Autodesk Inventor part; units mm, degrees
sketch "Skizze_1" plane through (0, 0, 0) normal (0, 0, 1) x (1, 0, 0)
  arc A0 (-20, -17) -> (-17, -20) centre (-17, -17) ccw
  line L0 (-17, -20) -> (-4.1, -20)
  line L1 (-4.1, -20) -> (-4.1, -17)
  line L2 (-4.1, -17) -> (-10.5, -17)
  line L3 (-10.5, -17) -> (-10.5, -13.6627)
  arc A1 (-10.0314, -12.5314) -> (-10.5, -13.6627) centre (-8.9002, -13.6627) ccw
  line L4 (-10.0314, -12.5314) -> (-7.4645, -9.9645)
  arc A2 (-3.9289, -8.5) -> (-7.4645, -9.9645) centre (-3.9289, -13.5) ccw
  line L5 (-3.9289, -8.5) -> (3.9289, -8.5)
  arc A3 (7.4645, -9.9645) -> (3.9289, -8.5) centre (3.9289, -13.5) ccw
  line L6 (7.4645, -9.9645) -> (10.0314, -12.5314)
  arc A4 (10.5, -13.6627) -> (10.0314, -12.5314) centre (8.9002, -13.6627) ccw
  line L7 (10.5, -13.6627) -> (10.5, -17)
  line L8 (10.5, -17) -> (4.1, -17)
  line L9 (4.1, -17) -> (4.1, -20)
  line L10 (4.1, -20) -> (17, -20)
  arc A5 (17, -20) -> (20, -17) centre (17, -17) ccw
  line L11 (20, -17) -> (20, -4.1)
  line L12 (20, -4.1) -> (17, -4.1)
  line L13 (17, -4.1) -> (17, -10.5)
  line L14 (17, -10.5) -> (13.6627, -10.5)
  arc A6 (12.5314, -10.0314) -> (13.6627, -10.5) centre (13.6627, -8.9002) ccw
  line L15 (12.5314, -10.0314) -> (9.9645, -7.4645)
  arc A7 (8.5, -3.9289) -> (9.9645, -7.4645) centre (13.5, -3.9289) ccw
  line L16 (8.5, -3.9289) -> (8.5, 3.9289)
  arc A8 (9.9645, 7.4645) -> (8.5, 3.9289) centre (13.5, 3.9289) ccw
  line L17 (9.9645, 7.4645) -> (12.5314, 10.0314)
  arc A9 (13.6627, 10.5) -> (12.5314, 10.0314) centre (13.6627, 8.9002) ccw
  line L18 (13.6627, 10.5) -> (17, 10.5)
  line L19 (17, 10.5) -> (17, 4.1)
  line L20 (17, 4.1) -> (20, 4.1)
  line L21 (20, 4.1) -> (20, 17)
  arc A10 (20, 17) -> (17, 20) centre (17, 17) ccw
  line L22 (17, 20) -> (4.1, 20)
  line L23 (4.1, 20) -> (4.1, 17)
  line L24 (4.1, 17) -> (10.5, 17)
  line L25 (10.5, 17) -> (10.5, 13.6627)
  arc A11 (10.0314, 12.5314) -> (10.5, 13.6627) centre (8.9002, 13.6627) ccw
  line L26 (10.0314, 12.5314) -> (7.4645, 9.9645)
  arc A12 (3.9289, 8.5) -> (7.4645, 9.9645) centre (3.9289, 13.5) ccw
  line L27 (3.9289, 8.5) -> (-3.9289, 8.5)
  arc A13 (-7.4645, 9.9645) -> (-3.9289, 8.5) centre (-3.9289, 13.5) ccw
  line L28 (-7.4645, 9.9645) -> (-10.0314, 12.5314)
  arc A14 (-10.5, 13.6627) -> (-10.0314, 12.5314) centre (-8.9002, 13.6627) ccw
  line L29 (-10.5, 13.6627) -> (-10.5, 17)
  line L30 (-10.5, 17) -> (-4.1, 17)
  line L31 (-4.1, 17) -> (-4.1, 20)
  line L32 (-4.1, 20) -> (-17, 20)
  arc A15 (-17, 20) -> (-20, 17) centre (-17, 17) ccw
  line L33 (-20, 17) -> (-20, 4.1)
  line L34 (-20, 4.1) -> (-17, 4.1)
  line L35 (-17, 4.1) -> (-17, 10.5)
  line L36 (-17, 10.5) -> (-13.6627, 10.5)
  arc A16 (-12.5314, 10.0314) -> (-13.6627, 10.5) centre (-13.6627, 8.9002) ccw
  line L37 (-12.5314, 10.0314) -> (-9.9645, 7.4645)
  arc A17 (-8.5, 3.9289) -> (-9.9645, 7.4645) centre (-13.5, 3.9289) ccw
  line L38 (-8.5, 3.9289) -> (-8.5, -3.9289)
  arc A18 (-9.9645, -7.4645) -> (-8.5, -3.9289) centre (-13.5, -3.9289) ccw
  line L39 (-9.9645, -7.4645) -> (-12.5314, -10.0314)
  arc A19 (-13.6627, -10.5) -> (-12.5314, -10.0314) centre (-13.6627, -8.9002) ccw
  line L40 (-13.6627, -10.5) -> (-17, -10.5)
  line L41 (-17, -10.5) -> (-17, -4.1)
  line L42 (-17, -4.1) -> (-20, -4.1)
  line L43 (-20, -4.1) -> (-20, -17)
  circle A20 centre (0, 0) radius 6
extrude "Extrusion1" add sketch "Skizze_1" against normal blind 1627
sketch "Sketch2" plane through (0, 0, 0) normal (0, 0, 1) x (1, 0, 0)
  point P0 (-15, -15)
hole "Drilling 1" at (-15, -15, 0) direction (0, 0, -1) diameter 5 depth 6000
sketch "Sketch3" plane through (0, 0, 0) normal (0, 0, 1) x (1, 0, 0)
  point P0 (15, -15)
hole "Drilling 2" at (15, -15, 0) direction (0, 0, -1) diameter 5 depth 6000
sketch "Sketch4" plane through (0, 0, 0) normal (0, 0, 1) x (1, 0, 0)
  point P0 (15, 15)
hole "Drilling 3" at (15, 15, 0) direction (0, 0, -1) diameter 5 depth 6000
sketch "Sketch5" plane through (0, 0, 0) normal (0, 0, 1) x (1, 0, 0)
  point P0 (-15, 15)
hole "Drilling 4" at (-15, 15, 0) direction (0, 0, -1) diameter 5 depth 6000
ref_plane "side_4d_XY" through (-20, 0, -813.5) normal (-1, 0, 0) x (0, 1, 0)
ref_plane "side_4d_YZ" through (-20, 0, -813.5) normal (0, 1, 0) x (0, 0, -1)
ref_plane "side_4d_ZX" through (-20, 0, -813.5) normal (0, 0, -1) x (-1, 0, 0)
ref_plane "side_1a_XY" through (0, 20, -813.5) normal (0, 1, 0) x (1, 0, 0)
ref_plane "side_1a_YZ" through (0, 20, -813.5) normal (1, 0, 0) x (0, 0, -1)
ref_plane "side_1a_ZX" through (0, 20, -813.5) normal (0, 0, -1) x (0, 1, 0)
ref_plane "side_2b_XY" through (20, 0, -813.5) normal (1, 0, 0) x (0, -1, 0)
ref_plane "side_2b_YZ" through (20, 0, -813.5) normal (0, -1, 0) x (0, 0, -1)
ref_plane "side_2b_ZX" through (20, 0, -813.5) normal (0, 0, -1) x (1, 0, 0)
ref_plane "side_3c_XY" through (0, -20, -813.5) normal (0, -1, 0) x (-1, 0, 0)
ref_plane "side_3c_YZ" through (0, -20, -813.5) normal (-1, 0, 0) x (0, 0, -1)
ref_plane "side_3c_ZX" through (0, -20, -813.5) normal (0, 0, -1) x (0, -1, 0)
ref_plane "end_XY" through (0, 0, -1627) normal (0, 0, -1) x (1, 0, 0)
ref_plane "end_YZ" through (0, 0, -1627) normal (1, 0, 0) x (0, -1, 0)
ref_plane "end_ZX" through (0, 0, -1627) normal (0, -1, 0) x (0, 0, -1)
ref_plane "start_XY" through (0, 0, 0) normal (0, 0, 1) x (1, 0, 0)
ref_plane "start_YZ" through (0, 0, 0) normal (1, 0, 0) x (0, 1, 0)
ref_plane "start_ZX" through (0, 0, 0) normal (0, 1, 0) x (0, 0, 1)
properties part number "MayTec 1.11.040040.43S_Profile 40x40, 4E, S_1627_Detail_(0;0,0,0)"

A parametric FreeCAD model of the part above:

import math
import FreeCAD as App
import Part
import Sketcher
Q = App.Units.Quantity

doc = App.newDocument("Part")
body = doc.addObject("PartDesign::Body", "Body")

sketch1 = body.newObject("Sketcher::SketchObject", "Sketch")
sketch1.AttachmentSupport = (doc.getObject("XY_Plane"), [""])
sketch1.MapMode = "FlatFace"
sketch1.addGeometry([
    Part.LineSegment(App.Vector(-20, -4.1, 0), App.Vector(-20, -17, 0)),
    Part.ArcOfCircle(Part.Circle(App.Vector(-17, -17, 0), App.Vector(0, 0, 1), 3), math.radians(180), math.radians(270)),
    Part.LineSegment(App.Vector(-17, -20, 0), App.Vector(-4.1, -20, 0)),
    Part.LineSegment(App.Vector(-4.1, -20, 0), App.Vector(-4.1, -17, 0)),
    Part.LineSegment(App.Vector(-4.1, -17, 0), App.Vector(-10.5, -17, 0)),
    Part.LineSegment(App.Vector(-10.5, -17, 0), App.Vector(-10.5, -13.7, 0)),
    Part.ArcOfCircle(Part.Circle(App.Vector(-8.9, -13.7, 0), App.Vector(0, 0, 1), 1.6), math.radians(135), math.radians(180)),
    Part.LineSegment(App.Vector(-10, -12.5, 0), App.Vector(-7.5, -10, 0)),
    Part.ArcOfCircle(Part.Circle(App.Vector(-3.9, -13.5, 0), App.Vector(0, 0, 1), 5), math.radians(90), math.radians(135)),
    Part.LineSegment(App.Vector(-3.9, -8.5, 0), App.Vector(3.9, -8.5, 0)),
    Part.ArcOfCircle(Part.Circle(App.Vector(3.9, -13.5, 0), App.Vector(0, 0, 1), 5), math.radians(45), math.radians(90)),
    Part.LineSegment(App.Vector(7.5, -10, 0), App.Vector(10, -12.5, 0)),
    Part.ArcOfCircle(Part.Circle(App.Vector(8.9, -13.7, 0), App.Vector(0, 0, 1), 1.6), math.radians(0), math.radians(45)),
    Part.LineSegment(App.Vector(10.5, -13.7, 0), App.Vector(10.5, -17, 0)),
    Part.LineSegment(App.Vector(10.5, -17, 0), App.Vector(4.1, -17, 0)),
    Part.LineSegment(App.Vector(4.1, -17, 0), App.Vector(4.1, -20, 0)),
    Part.LineSegment(App.Vector(4.1, -20, 0), App.Vector(17, -20, 0)),
    Part.ArcOfCircle(Part.Circle(App.Vector(17, -17, 0), App.Vector(0, 0, 1), 3), math.radians(-90), math.radians(0)),
    Part.LineSegment(App.Vector(20, -17, 0), App.Vector(20, -4.1, 0)),
    Part.LineSegment(App.Vector(20, -4.1, 0), App.Vector(17, -4.1, 0)),
    Part.LineSegment(App.Vector(17, -4.1, 0), App.Vector(17, -10.5, 0)),
    Part.LineSegment(App.Vector(17, -10.5, 0), App.Vector(13.7, -10.5, 0)),
    Part.ArcOfCircle(Part.Circle(App.Vector(13.7, -8.9, 0), App.Vector(0, 0, 1), 1.6), math.radians(-135), math.radians(-90)),
    Part.LineSegment(App.Vector(12.5, -10, 0), App.Vector(10, -7.5, 0)),
    Part.ArcOfCircle(Part.Circle(App.Vector(13.5, -3.9, 0), App.Vector(0, 0, 1), 5), math.radians(180), math.radians(225)),
    Part.LineSegment(App.Vector(8.5, -3.9, 0), App.Vector(8.5, 3.9, 0)),
    Part.ArcOfCircle(Part.Circle(App.Vector(13.5, 3.9, 0), App.Vector(0, 0, 1), 5), math.radians(135), math.radians(180)),
    Part.LineSegment(App.Vector(10, 7.5, 0), App.Vector(12.5, 10, 0)),
    Part.ArcOfCircle(Part.Circle(App.Vector(13.7, 8.9, 0), App.Vector(0, 0, 1), 1.6), math.radians(90), math.radians(135)),
    Part.LineSegment(App.Vector(13.7, 10.5, 0), App.Vector(17, 10.5, 0)),
    Part.LineSegment(App.Vector(17, 10.5, 0), App.Vector(17, 4.1, 0)),
    Part.LineSegment(App.Vector(17, 4.1, 0), App.Vector(20, 4.1, 0)),
    Part.LineSegment(App.Vector(20, 4.1, 0), App.Vector(20, 17, 0)),
    Part.ArcOfCircle(Part.Circle(App.Vector(17, 17, 0), App.Vector(0, 0, 1), 3), math.radians(0), math.radians(90)),
    Part.LineSegment(App.Vector(17, 20, 0), App.Vector(4.1, 20, 0)),
    Part.LineSegment(App.Vector(4.1, 20, 0), App.Vector(4.1, 17, 0)),
    Part.LineSegment(App.Vector(4.1, 17, 0), App.Vector(10.5, 17, 0)),
    Part.LineSegment(App.Vector(10.5, 17, 0), App.Vector(10.5, 13.7, 0)),
    Part.ArcOfCircle(Part.Circle(App.Vector(8.9, 13.7, 0), App.Vector(0, 0, 1), 1.6), math.radians(-45), math.radians(0)),
    Part.LineSegment(App.Vector(10, 12.5, 0), App.Vector(7.5, 10, 0)),
    Part.ArcOfCircle(Part.Circle(App.Vector(3.9, 13.5, 0), App.Vector(0, 0, 1), 5), math.radians(-90), math.radians(-45)),
    Part.LineSegment(App.Vector(3.9, 8.5, 0), App.Vector(-3.9, 8.5, 0)),
    Part.ArcOfCircle(Part.Circle(App.Vector(-3.9, 13.5, 0), App.Vector(0, 0, 1), 5), math.radians(-135), math.radians(-90)),
    Part.LineSegment(App.Vector(-7.5, 10, 0), App.Vector(-10, 12.5, 0)),
    Part.ArcOfCircle(Part.Circle(App.Vector(-8.9, 13.7, 0), App.Vector(0, 0, 1), 1.6), math.radians(180), math.radians(225)),
    Part.LineSegment(App.Vector(-10.5, 13.7, 0), App.Vector(-10.5, 17, 0)),
    Part.LineSegment(App.Vector(-10.5, 17, 0), App.Vector(-4.1, 17, 0)),
    Part.LineSegment(App.Vector(-4.1, 17, 0), App.Vector(-4.1, 20, 0)),
    Part.LineSegment(App.Vector(-4.1, 20, 0), App.Vector(-17, 20, 0)),
    Part.ArcOfCircle(Part.Circle(App.Vector(-17, 17, 0), App.Vector(0, 0, 1), 3), math.radians(90), math.radians(180)),
    Part.LineSegment(App.Vector(-20, 17, 0), App.Vector(-20, 4.1, 0)),
    Part.LineSegment(App.Vector(-20, 4.1, 0), App.Vector(-17, 4.1, 0)),
    Part.LineSegment(App.Vector(-17, 4.1, 0), App.Vector(-17, 10.5, 0)),
    Part.LineSegment(App.Vector(-17, 10.5, 0), App.Vector(-13.7, 10.5, 0)),
    Part.ArcOfCircle(Part.Circle(App.Vector(-13.7, 8.9, 0), App.Vector(0, 0, 1), 1.6), math.radians(45), math.radians(90)),
    Part.LineSegment(App.Vector(-12.5, 10, 0), App.Vector(-10, 7.5, 0)),
    Part.ArcOfCircle(Part.Circle(App.Vector(-13.5, 3.9, 0), App.Vector(0, 0, 1), 5), math.radians(0), math.radians(45)),
    Part.LineSegment(App.Vector(-8.5, 3.9, 0), App.Vector(-8.5, -3.9, 0)),
    Part.ArcOfCircle(Part.Circle(App.Vector(-13.5, -3.9, 0), App.Vector(0, 0, 1), 5), math.radians(-45), math.radians(0)),
    Part.LineSegment(App.Vector(-10, -7.5, 0), App.Vector(-12.5, -10, 0)),
    Part.ArcOfCircle(Part.Circle(App.Vector(-13.7, -8.9, 0), App.Vector(0, 0, 1), 1.6), math.radians(-90), math.radians(-45)),
    Part.LineSegment(App.Vector(-13.7, -10.5, 0), App.Vector(-17, -10.5, 0)),
    Part.LineSegment(App.Vector(-17, -10.5, 0), App.Vector(-17, -4.1, 0)),
    Part.LineSegment(App.Vector(-17, -4.1, 0), App.Vector(-20, -4.1, 0)),
    Part.Circle(App.Vector(0, 0, 0), App.Vector(0, 0, 1), 6),
], False)
sketch1.addConstraint([
    Sketcher.Constraint("Tangent", 0, 2, 1, 1),
    Sketcher.Constraint("Tangent", 1, 2, 2, 1),
    Sketcher.Constraint("Coincident", 2, 2, 3, 1),
    Sketcher.Constraint("Coincident", 3, 2, 4, 1),
    Sketcher.Constraint("Coincident", 4, 2, 5, 1),
    Sketcher.Constraint("Tangent", 5, 2, 6, 2),
    Sketcher.Constraint("Tangent", 6, 1, 7, 1),
    Sketcher.Constraint("Tangent", 7, 2, 8, 2),
    Sketcher.Constraint("Tangent", 8, 1, 9, 1),
    Sketcher.Constraint("Tangent", 9, 2, 10, 2),
    Sketcher.Constraint("Tangent", 10, 1, 11, 1),
    Sketcher.Constraint("Tangent", 11, 2, 12, 2),
    Sketcher.Constraint("Tangent", 12, 1, 13, 1),
    Sketcher.Constraint("Coincident", 13, 2, 14, 1),
    Sketcher.Constraint("Coincident", 14, 2, 15, 1),
    Sketcher.Constraint("Coincident", 15, 2, 16, 1),
    Sketcher.Constraint("Tangent", 16, 2, 17, 1),
    Sketcher.Constraint("Tangent", 17, 2, 18, 1),
    Sketcher.Constraint("Coincident", 18, 2, 19, 1),
    Sketcher.Constraint("Coincident", 19, 2, 20, 1),
    Sketcher.Constraint("Coincident", 20, 2, 21, 1),
    Sketcher.Constraint("Tangent", 21, 2, 22, 2),
    Sketcher.Constraint("Tangent", 22, 1, 23, 1),
    Sketcher.Constraint("Tangent", 23, 2, 24, 2),
    Sketcher.Constraint("Tangent", 24, 1, 25, 1),
    Sketcher.Constraint("Tangent", 25, 2, 26, 2),
    Sketcher.Constraint("Tangent", 26, 1, 27, 1),
    Sketcher.Constraint("Tangent", 27, 2, 28, 2),
    Sketcher.Constraint("Tangent", 28, 1, 29, 1),
    Sketcher.Constraint("Coincident", 29, 2, 30, 1),
    Sketcher.Constraint("Coincident", 30, 2, 31, 1),
    Sketcher.Constraint("Coincident", 31, 2, 32, 1),
    Sketcher.Constraint("Tangent", 32, 2, 33, 1),
    Sketcher.Constraint("Tangent", 33, 2, 34, 1),
    Sketcher.Constraint("Coincident", 34, 2, 35, 1),
    Sketcher.Constraint("Coincident", 35, 2, 36, 1),
    Sketcher.Constraint("Coincident", 36, 2, 37, 1),
    Sketcher.Constraint("Tangent", 37, 2, 38, 2),
    Sketcher.Constraint("Tangent", 38, 1, 39, 1),
    Sketcher.Constraint("Tangent", 39, 2, 40, 2),
    Sketcher.Constraint("Tangent", 40, 1, 41, 1),
    Sketcher.Constraint("Tangent", 41, 2, 42, 2),
    Sketcher.Constraint("Tangent", 42, 1, 43, 1),
    Sketcher.Constraint("Tangent", 43, 2, 44, 2),
    Sketcher.Constraint("Tangent", 44, 1, 45, 1),
    Sketcher.Constraint("Coincident", 45, 2, 46, 1),
    Sketcher.Constraint("Coincident", 46, 2, 47, 1),
    Sketcher.Constraint("Coincident", 47, 2, 48, 1),
    Sketcher.Constraint("Tangent", 48, 2, 49, 1),
    Sketcher.Constraint("Tangent", 49, 2, 50, 1),
    Sketcher.Constraint("Coincident", 50, 2, 51, 1),
    Sketcher.Constraint("Coincident", 51, 2, 52, 1),
    Sketcher.Constraint("Coincident", 52, 2, 53, 1),
    Sketcher.Constraint("Tangent", 53, 2, 54, 2),
    Sketcher.Constraint("Tangent", 54, 1, 55, 1),
    Sketcher.Constraint("Tangent", 55, 2, 56, 2),
    Sketcher.Constraint("Tangent", 56, 1, 57, 1),
    Sketcher.Constraint("Tangent", 57, 2, 58, 2),
    Sketcher.Constraint("Tangent", 58, 1, 59, 1),
    Sketcher.Constraint("Tangent", 59, 2, 60, 2),
    Sketcher.Constraint("Tangent", 60, 1, 61, 1),
    Sketcher.Constraint("Coincident", 61, 2, 62, 1),
    Sketcher.Constraint("Coincident", 62, 2, 63, 1),
    Sketcher.Constraint("Coincident", 63, 2, 0, 1),
    Sketcher.Constraint("Vertical", 0),
    Sketcher.Constraint("Horizontal", 2),
    Sketcher.Constraint("Vertical", 3),
    Sketcher.Constraint("Horizontal", 4),
    Sketcher.Constraint("Vertical", 5),
    Sketcher.Constraint("Horizontal", 9),
    Sketcher.Constraint("Vertical", 13),
    Sketcher.Constraint("Horizontal", 14),
    Sketcher.Constraint("Vertical", 15),
    Sketcher.Constraint("Horizontal", 16),
    Sketcher.Constraint("Vertical", 18),
    Sketcher.Constraint("Horizontal", 19),
    Sketcher.Constraint("Vertical", 20),
    Sketcher.Constraint("Horizontal", 21),
    Sketcher.Constraint("Vertical", 25),
    Sketcher.Constraint("Horizontal", 29),
    Sketcher.Constraint("Vertical", 30),
    Sketcher.Constraint("Horizontal", 31),
    Sketcher.Constraint("Vertical", 32),
    Sketcher.Constraint("Horizontal", 34),
    Sketcher.Constraint("Vertical", 35),
    Sketcher.Constraint("Horizontal", 36),
    Sketcher.Constraint("Vertical", 37),
    Sketcher.Constraint("Horizontal", 41),
    Sketcher.Constraint("Vertical", 45),
    Sketcher.Constraint("Horizontal", 46),
    Sketcher.Constraint("Vertical", 47),
    Sketcher.Constraint("Horizontal", 48),
    Sketcher.Constraint("Vertical", 50),
    Sketcher.Constraint("Horizontal", 51),
    Sketcher.Constraint("Vertical", 52),
    Sketcher.Constraint("Horizontal", 53),
    Sketcher.Constraint("Vertical", 57),
    Sketcher.Constraint("Horizontal", 61),
    Sketcher.Constraint("Vertical", 62),
    Sketcher.Constraint("Horizontal", 63),
    Sketcher.Constraint("Coincident", 64, 3, -1, 1),
    Sketcher.Constraint("Equal", 8, 10),
    Sketcher.Constraint("Equal", 6, 12),
    Sketcher.Constraint("Equal", 1, 17),
    Sketcher.Constraint("Equal", 12, 22),
    Sketcher.Constraint("Equal", 10, 24),
    Sketcher.Constraint("Equal", 24, 26),
    Sketcher.Constraint("Equal", 22, 28),
    Sketcher.Constraint("Equal", 17, 33),
    Sketcher.Constraint("Equal", 28, 38),
    Sketcher.Constraint("Equal", 26, 40),
    Sketcher.Constraint("Equal", 40, 42),
    Sketcher.Constraint("Equal", 38, 44),
    Sketcher.Constraint("Equal", 33, 49),
    Sketcher.Constraint("Equal", 44, 54),
    Sketcher.Constraint("Equal", 42, 56),
    Sketcher.Constraint("Equal", 56, 58),
    Sketcher.Constraint("Equal", 54, 60),
    Sketcher.Constraint("Symmetric", 1, 3, 33, 3, -1, 1),
    Sketcher.Constraint("Symmetric", 6, 3, 38, 3, -1, 1),
    Sketcher.Constraint("Symmetric", 8, 3, 40, 3, -1, 1),
    Sketcher.Constraint("Symmetric", 12, 3, 44, 3, -1, 1),
    Sketcher.Constraint("Symmetric", 17, 3, 49, 3, -1, 1),
    Sketcher.Constraint("Symmetric", 22, 3, 54, 3, -1, 1),
    Sketcher.Constraint("Symmetric", 24, 3, 56, 3, -1, 1),
    Sketcher.Constraint("Symmetric", 28, 3, 60, 3, -1, 1),
    Sketcher.Constraint("Symmetric", 3, 2, 35, 2, -1, 1),
    Sketcher.Constraint("Symmetric", 14, 2, 46, 2, -1, 1),
    Sketcher.Constraint("Symmetric", 19, 2, 51, 2, -1, 1),
    Sketcher.Constraint("Symmetric", 30, 2, 62, 2, -1, 1),
    Sketcher.Constraint("Symmetric", 6, 3, 12, 3, -2),
    Sketcher.Constraint("Symmetric", 1, 3, 17, 3, -2),
    Sketcher.Constraint("Symmetric", 28, 3, 54, 3, -2),
    Sketcher.Constraint("Symmetric", 3, 2, 14, 2, -2),
    Sketcher.Constraint("Symmetric", 30, 2, 51, 2, -2),
    Sketcher.Constraint("Perpendicular", 7, 11),
    Sketcher.Constraint("Parallel", 11, 23),
    Sketcher.Constraint("Perpendicular", 23, 27),
    Sketcher.Constraint("Perpendicular", 39, 43),
    Sketcher.Constraint("Perpendicular", 55, 59),
    Sketcher.Constraint("Horizontal", 26, 3, 56, 3),
    Sketcher.Constraint("Horizontal", 0, 2, 3, 2),
    Sketcher.Constraint("Vertical", 16, 2, 19, 2),
    Sketcher.Constraint("Equal", 48, 0),
    Sketcher.Constraint("Equal", 61, 5),
    Sketcher.Constraint("Equal", 46, 20),
    Sketcher.Constraint("Equal", 41, 25),
    Sketcher.Constraint("Equal", 11, 23),
    Sketcher.Constraint("Diameter", 64, Q("12 mm")),
    Sketcher.Constraint("Radius", 1, Q("3 mm")),
    Sketcher.Constraint("Radius", 8, Q("5 mm")),
    Sketcher.Constraint("DistanceX", 2, 1, 2, 2, Q("12.9 mm")),
    Sketcher.Constraint("DistanceX", 4, 2, 4, 1, Q("6.4 mm")),
    Sketcher.Constraint("DistanceX", 1, 3, -1, 1, Q("17 mm")),
    Sketcher.Constraint("DistanceY", 8, 3, -1, 1, Q("13.5 mm")),
    Sketcher.Constraint("Radius", 6, Q("1.5998 mm")),
    Sketcher.Constraint("DistanceX", 9, 1, 9, 2, Q("7.8578 mm")),
])
pad1 = body.newObject("PartDesign::Pad", "Pad")
pad1.Profile = sketch1
pad1.Length = 1627
pad1.Reversed = True

sketch2 = body.newObject("Sketcher::SketchObject", "Sketch001")
sketch2.AttachmentSupport = (doc.getObject("XY_Plane"), [""])
sketch2.MapMode = "FlatFace"
sketch2.addGeometry(Part.Circle(App.Vector(-15, -15, 0), App.Vector(0, 0, 1), 2.5), False)
sketch2.addConstraint([
    Sketcher.Constraint("Diameter", 0, Q("5 mm")),
    Sketcher.Constraint("DistanceX", 0, 3, -1, 1, Q("15 mm")),
    Sketcher.Constraint("DistanceY", 0, 3, -1, 1, Q("15 mm")),
])
doc.recompute()
hole = body.newObject("PartDesign::Hole", "Hole")
hole.Profile = sketch2
hole.ThreadType = "None"
hole.Diameter = 5
hole.DepthType = "Dimension"
hole.Depth = 6000
hole.DrillPoint = "Flat"

sketch3 = body.newObject("Sketcher::SketchObject", "Sketch002")
sketch3.AttachmentSupport = (doc.getObject("XY_Plane"), [""])
sketch3.MapMode = "FlatFace"
sketch3.addGeometry(Part.Circle(App.Vector(15, -15, 0), App.Vector(0, 0, 1), 2.5), False)
sketch3.addConstraint([
    Sketcher.Constraint("Diameter", 0, Q("5 mm")),
    Sketcher.Constraint("DistanceX", -1, 1, 0, 3, Q("15 mm")),
    Sketcher.Constraint("DistanceY", 0, 3, -1, 1, Q("15 mm")),
])
doc.recompute()
hole2 = body.newObject("PartDesign::Hole", "Hole001")
hole2.Profile = sketch3
hole2.ThreadType = "None"
hole2.Diameter = 5
hole2.DepthType = "Dimension"
hole2.Depth = 6000
hole2.DrillPoint = "Flat"

sketch4 = body.newObject("Sketcher::SketchObject", "Sketch003")
sketch4.AttachmentSupport = (doc.getObject("XY_Plane"), [""])
sketch4.MapMode = "FlatFace"
sketch4.addGeometry(Part.Circle(App.Vector(15, 15, 0), App.Vector(0, 0, 1), 2.5), False)
sketch4.addConstraint([
    Sketcher.Constraint("Diameter", 0, Q("5 mm")),
    Sketcher.Constraint("DistanceX", -1, 1, 0, 3, Q("15 mm")),
    Sketcher.Constraint("DistanceY", -1, 1, 0, 3, Q("15 mm")),
])
doc.recompute()
hole3 = body.newObject("PartDesign::Hole", "Hole002")
hole3.Profile = sketch4
hole3.ThreadType = "None"
hole3.Diameter = 5
hole3.DepthType = "Dimension"
hole3.Depth = 6000
hole3.DrillPoint = "Flat"

sketch5 = body.newObject("Sketcher::SketchObject", "Sketch004")
sketch5.AttachmentSupport = (doc.getObject("XY_Plane"), [""])
sketch5.MapMode = "FlatFace"
sketch5.addGeometry(Part.Circle(App.Vector(-15, 15, 0), App.Vector(0, 0, 1), 2.5), False)
sketch5.addConstraint([
    Sketcher.Constraint("Diameter", 0, Q("5 mm")),
    Sketcher.Constraint("DistanceX", 0, 3, -1, 1, Q("15 mm")),
    Sketcher.Constraint("DistanceY", -1, 1, 0, 3, Q("15 mm")),
])
doc.recompute()
hole4 = body.newObject("PartDesign::Hole", "Hole003")
hole4.Profile = sketch5
hole4.ThreadType = "None"
hole4.Diameter = 5
hole4.DepthType = "Dimension"
hole4.Depth = 6000
hole4.DrillPoint = "Flat"

doc.recompute()
